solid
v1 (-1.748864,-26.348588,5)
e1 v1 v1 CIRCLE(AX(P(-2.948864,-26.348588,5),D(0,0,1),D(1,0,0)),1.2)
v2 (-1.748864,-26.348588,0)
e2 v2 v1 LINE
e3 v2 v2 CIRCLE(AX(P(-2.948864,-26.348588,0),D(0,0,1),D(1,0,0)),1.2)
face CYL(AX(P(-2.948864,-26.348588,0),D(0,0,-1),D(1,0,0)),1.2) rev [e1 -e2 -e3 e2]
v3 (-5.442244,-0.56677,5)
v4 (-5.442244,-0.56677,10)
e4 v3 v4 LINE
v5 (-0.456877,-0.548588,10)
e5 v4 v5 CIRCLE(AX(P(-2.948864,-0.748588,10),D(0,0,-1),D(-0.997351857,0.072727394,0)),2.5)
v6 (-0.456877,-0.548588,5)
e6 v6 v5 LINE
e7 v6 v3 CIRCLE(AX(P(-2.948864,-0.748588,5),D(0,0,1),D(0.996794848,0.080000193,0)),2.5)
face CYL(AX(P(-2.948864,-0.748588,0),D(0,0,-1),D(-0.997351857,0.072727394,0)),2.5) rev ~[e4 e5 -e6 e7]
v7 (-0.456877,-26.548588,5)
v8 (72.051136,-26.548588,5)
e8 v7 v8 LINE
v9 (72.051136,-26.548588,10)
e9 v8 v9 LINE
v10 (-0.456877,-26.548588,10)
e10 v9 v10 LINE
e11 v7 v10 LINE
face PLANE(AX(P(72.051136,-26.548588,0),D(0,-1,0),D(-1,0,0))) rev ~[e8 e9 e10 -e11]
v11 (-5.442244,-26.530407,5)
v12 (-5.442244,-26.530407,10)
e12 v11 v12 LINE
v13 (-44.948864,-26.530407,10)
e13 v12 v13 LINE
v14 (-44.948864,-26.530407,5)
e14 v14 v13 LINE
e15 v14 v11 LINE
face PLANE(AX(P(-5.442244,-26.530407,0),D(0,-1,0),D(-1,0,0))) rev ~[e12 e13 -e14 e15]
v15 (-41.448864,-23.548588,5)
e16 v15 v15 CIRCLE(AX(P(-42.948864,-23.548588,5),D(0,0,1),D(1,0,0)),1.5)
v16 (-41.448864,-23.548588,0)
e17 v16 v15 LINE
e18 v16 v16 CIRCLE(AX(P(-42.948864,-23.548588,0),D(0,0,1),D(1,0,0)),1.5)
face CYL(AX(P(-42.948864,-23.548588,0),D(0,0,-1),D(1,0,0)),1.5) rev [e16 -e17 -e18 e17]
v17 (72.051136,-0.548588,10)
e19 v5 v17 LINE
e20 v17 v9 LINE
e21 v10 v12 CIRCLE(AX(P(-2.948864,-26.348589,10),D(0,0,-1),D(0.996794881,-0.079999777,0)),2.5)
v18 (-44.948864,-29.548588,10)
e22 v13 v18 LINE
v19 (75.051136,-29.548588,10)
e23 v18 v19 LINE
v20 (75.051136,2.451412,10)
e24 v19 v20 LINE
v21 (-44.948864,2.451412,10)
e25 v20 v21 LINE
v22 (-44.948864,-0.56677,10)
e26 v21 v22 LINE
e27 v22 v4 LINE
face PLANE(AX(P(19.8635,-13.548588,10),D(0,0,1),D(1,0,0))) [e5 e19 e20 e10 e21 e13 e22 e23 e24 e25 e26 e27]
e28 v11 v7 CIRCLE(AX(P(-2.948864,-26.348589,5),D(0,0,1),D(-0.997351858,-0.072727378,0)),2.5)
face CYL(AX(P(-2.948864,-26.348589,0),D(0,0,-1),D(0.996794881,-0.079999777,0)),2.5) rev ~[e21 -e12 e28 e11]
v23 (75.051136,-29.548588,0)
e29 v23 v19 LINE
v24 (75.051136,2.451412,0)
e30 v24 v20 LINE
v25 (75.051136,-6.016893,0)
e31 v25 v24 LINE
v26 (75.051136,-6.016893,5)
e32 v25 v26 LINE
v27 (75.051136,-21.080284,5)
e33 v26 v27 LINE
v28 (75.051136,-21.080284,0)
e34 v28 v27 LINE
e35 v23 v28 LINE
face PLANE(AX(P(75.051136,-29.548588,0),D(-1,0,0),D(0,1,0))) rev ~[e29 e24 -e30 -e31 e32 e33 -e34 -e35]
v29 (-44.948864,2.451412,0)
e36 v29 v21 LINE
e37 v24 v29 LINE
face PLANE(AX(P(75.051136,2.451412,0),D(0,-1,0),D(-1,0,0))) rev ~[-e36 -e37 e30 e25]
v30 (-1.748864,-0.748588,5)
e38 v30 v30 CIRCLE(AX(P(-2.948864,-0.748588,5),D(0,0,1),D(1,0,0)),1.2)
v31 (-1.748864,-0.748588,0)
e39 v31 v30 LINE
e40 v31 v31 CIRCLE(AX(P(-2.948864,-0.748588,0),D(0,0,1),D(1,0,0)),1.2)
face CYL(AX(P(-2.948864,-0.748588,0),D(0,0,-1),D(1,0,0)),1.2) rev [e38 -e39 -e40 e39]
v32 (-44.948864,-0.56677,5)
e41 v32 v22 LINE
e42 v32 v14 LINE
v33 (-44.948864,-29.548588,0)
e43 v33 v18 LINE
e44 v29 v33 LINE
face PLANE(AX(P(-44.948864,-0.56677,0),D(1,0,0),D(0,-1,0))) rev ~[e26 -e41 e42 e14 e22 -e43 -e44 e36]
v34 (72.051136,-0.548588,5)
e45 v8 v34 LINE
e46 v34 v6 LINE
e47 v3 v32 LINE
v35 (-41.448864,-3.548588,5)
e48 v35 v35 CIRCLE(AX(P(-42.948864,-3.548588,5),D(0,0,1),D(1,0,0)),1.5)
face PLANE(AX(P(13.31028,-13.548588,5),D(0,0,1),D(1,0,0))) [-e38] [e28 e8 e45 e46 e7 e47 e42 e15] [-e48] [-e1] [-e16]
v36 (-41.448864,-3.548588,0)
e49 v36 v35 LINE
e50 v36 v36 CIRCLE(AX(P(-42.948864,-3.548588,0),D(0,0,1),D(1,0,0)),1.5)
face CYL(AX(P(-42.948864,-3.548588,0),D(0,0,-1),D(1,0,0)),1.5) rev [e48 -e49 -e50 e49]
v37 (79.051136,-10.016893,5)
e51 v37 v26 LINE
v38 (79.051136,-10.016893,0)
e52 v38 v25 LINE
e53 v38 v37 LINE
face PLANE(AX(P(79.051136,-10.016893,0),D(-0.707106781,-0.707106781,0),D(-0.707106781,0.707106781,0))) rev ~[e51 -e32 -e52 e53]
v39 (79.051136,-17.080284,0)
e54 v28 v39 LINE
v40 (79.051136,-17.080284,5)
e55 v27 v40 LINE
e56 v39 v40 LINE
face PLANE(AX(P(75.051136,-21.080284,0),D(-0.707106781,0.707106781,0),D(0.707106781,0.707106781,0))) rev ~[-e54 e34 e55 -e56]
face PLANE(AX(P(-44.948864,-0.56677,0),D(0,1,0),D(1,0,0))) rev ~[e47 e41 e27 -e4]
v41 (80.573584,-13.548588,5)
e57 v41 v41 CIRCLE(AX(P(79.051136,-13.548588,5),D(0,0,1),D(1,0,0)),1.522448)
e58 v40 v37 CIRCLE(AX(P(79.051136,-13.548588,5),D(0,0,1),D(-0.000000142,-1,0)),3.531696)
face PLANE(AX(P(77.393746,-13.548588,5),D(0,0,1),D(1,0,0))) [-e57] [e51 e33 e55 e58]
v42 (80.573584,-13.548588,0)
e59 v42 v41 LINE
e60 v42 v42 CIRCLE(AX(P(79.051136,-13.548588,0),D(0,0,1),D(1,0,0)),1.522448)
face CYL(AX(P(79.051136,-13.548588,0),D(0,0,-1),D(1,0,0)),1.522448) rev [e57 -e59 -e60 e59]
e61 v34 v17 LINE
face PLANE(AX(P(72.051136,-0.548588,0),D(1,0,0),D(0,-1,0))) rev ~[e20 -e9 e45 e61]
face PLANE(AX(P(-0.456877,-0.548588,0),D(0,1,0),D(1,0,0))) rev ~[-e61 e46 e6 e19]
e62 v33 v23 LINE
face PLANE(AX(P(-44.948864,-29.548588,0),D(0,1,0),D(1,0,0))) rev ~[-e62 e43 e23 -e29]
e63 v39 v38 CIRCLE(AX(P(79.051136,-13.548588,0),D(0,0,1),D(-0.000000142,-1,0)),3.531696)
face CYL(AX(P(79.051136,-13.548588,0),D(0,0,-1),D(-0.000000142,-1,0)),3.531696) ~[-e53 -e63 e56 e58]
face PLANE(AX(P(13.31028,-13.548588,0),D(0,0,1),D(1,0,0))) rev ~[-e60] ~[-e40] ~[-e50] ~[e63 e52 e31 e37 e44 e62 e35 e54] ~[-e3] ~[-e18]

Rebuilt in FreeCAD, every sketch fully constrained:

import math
import FreeCAD as App
import Part
import Sketcher
from FreeCAD import Vector
Q = App.Units.Quantity

doc = App.newDocument("Part")
body = doc.addObject("PartDesign::Body", "Body")

sketch1 = body.newObject("Sketcher::SketchObject", "Sketch")
sketch1.AttachmentSupport = (doc.getObject("XY_Plane"), [""])
sketch1.MapMode = "FlatFace"
sketch1.addGeometry(Part.LineSegment(Vector(75.051136, 2.451412, 0), Vector(-44.948864, 2.451412, 0)), False)
sketch1.addGeometry(Part.LineSegment(Vector(-44.948864, 2.451412, 0), Vector(-44.948864, -0.56677, 0)), False)
sketch1.addGeometry(Part.LineSegment(Vector(-44.948864, -0.56677, 0), Vector(-5.442244, -0.56677, 0)), False)
sketch1.addGeometry(Part.ArcOfCircle(Part.Circle(Vector(-2.948864, -0.748588, 0), Vector(0, 0, 1), 2.5), math.radians(4.588577), math.radians(175.829345)), False)
sketch1.addGeometry(Part.LineSegment(Vector(-0.456877, -0.548588, 0), Vector(72.051136, -0.548588, 0)), False)
sketch1.addGeometry(Part.LineSegment(Vector(72.051136, -0.548588, 0), Vector(72.051136, -26.548588, 0)), False)
sketch1.addGeometry(Part.LineSegment(Vector(72.051136, -26.548588, 0), Vector(-0.456877, -26.548588, 0)), False)
sketch1.addGeometry(Part.ArcOfCircle(Part.Circle(Vector(-2.948864, -26.348589, 0), Vector(0, 0, 1), 2.5), math.radians(-175.829346), math.radians(-4.588553)), False)
sketch1.addGeometry(Part.LineSegment(Vector(-5.442244, -26.530407, 0), Vector(-44.948864, -26.530407, 0)), False)
sketch1.addGeometry(Part.LineSegment(Vector(-44.948864, -26.530407, 0), Vector(-44.948864, -29.548588, 0)), False)
sketch1.addGeometry(Part.LineSegment(Vector(-44.948864, -29.548588, 0), Vector(75.051136, -29.548588, 0)), False)
sketch1.addGeometry(Part.LineSegment(Vector(75.051136, -29.548588, 0), Vector(75.051136, 2.451412, 0)), False)
sketch1.addConstraint(Sketcher.Constraint("Coincident", 0, 2, 1, 1))
sketch1.addConstraint(Sketcher.Constraint("Coincident", 1, 2, 2, 1))
sketch1.addConstraint(Sketcher.Constraint("Coincident", 2, 2, 3, 2))
sketch1.addConstraint(Sketcher.Constraint("Coincident", 3, 1, 4, 1))
sketch1.addConstraint(Sketcher.Constraint("Coincident", 4, 2, 5, 1))
sketch1.addConstraint(Sketcher.Constraint("Coincident", 5, 2, 6, 1))
sketch1.addConstraint(Sketcher.Constraint("Coincident", 6, 2, 7, 2))
sketch1.addConstraint(Sketcher.Constraint("Coincident", 7, 1, 8, 1))
sketch1.addConstraint(Sketcher.Constraint("Coincident", 8, 2, 9, 1))
sketch1.addConstraint(Sketcher.Constraint("Coincident", 9, 2, 10, 1))
sketch1.addConstraint(Sketcher.Constraint("Coincident", 10, 2, 11, 1))
sketch1.addConstraint(Sketcher.Constraint("Coincident", 11, 2, 0, 1))
sketch1.addConstraint(Sketcher.Constraint("Horizontal", 0))
sketch1.addConstraint(Sketcher.Constraint("Vertical", 1))
sketch1.addConstraint(Sketcher.Constraint("Horizontal", 2))
sketch1.addConstraint(Sketcher.Constraint("Horizontal", 4))
sketch1.addConstraint(Sketcher.Constraint("Vertical", 5))
sketch1.addConstraint(Sketcher.Constraint("Horizontal", 6))
sketch1.addConstraint(Sketcher.Constraint("Horizontal", 8))
sketch1.addConstraint(Sketcher.Constraint("Vertical", 9))
sketch1.addConstraint(Sketcher.Constraint("Horizontal", 10))
sketch1.addConstraint(Sketcher.Constraint("Vertical", 11))
sketch1.addConstraint(Sketcher.Constraint("Equal", 3, 7))
sketch1.addConstraint(Sketcher.Constraint("Vertical", 3, 3, 7, 3))
sketch1.addConstraint(Sketcher.Constraint("Vertical", 3, 1, 6, 2))
sketch1.addConstraint(Sketcher.Constraint("Vertical", 2, 2, 7, 1))
sketch1.addConstraint(Sketcher.Constraint("Vertical", 1, 2, 8, 2))
sketch1.addConstraint(Sketcher.Constraint("Equal", 1, 9))
sketch1.addConstraint(Sketcher.Constraint("Radius", 3, Q("2.5 mm")))
sketch1.addConstraint(Sketcher.Constraint("DistanceX", 0, 2, 0, 1, Q("120 mm")))
sketch1.addConstraint(Sketcher.Constraint("DistanceY", 5, 2, 5, 1, Q("26 mm")))
sketch1.addConstraint(Sketcher.Constraint("DistanceY", 11, 1, 11, 2, Q("32 mm")))
sketch1.addConstraint(Sketcher.Constraint("DistanceX", 0, 2, 3, 3, Q("42 mm")))
sketch1.addConstraint(Sketcher.Constraint("DistanceX", 3, 3, 4, 2, Q("75 mm")))
sketch1.addConstraint(Sketcher.Constraint("DistanceY", 7, 3, 3, 3, Q("25.6 mm")))
sketch1.addConstraint(Sketcher.Constraint("DistanceX", 2, 1, 2, 2, Q("39.50662 mm")))
sketch1.addConstraint(Sketcher.Constraint("DistanceY", 3, 3, -1, 1, Q("0.748588 mm")))
sketch1.addConstraint(Sketcher.Constraint("DistanceX", 3, 3, -1, 1, Q("2.948864 mm")))
pad1 = body.newObject("PartDesign::Pad", "Pad")
pad1.Profile = sketch1
pad1.Length = 10

sketch2 = body.newObject("Sketcher::SketchObject", "Sketch001")
sketch2.AttachmentSupport = (doc.getObject("XY_Plane"), [""])
sketch2.MapMode = "FlatFace"
sketch2.addGeometry(Part.LineSegment(Vector(-5.442244, -0.56677, 0), Vector(-44.948864, -0.56677, 0)), False)
sketch2.addGeometry(Part.LineSegment(Vector(-44.948864, -0.56677, 0), Vector(-44.948864, -26.530407, 0)), False)
sketch2.addGeometry(Part.LineSegment(Vector(-44.948864, -26.530407, 0), Vector(-5.442244, -26.530407, 0)), False)
sketch2.addGeometry(Part.ArcOfCircle(Part.Circle(Vector(-2.948864, -26.348589, 0), Vector(0, 0, 1), 2.5), math.radians(-175.829346), math.radians(-4.588553)), False)
sketch2.addGeometry(Part.LineSegment(Vector(-0.456877, -26.548588, 0), Vector(72.051136, -26.548588, 0)), False)
sketch2.addGeometry(Part.LineSegment(Vector(72.051136, -26.548588, 0), Vector(72.051136, -0.548588, 0)), False)
sketch2.addGeometry(Part.LineSegment(Vector(72.051136, -0.548588, 0), Vector(-0.456877, -0.548588, 0)), False)
sketch2.addGeometry(Part.ArcOfCircle(Part.Circle(Vector(-2.948864, -0.748588, 0), Vector(0, 0, 1), 2.5), math.radians(4.588577), math.radians(175.829345)), False)
sketch2.addGeometry(Part.Circle(Vector(-42.948864, -23.548588, 0), Vector(0, 0, 1), 1.5), False)
sketch2.addGeometry(Part.Circle(Vector(-2.948864, -26.348588, 0), Vector(0, 0, 1), 1.2), False)
sketch2.addGeometry(Part.Circle(Vector(-42.948864, -3.548588, 0), Vector(0, 0, 1), 1.5), False)
sketch2.addGeometry(Part.Circle(Vector(-2.948864, -0.748588, 0), Vector(0, 0, 1), 1.2), False)
sketch2.addGeometry(Part.LineSegment(Vector(79.051136, -10.016893, 0), Vector(75.051136, -6.016893, 0)), False)
sketch2.addGeometry(Part.LineSegment(Vector(75.051136, -6.016893, 0), Vector(75.051136, -21.080284, 0)), False)
sketch2.addGeometry(Part.LineSegment(Vector(75.051136, -21.080284, 0), Vector(79.051136, -17.080284, 0)), False)
sketch2.addGeometry(Part.ArcOfCircle(Part.Circle(Vector(79.051136, -13.548588, 0), Vector(0, 0, 1), 3.531696), math.radians(-90.000008), math.radians(90.000008)), False)
sketch2.addGeometry(Part.Circle(Vector(79.051136, -13.548588, 0), Vector(0, 0, 1), 1.522448), False)
sketch2.addConstraint(Sketcher.Constraint("Coincident", 0, 2, 1, 1))
sketch2.addConstraint(Sketcher.Constraint("Coincident", 1, 2, 2, 1))
sketch2.addConstraint(Sketcher.Constraint("Coincident", 2, 2, 3, 1))
sketch2.addConstraint(Sketcher.Constraint("Coincident", 3, 2, 4, 1))
sketch2.addConstraint(Sketcher.Constraint("Coincident", 4, 2, 5, 1))
sketch2.addConstraint(Sketcher.Constraint("Coincident", 5, 2, 6, 1))
sketch2.addConstraint(Sketcher.Constraint("Coincident", 6, 2, 7, 1))
sketch2.addConstraint(Sketcher.Constraint("Coincident", 7, 2, 0, 1))
sketch2.addConstraint(Sketcher.Constraint("Coincident", 12, 2, 13, 1))
sketch2.addConstraint(Sketcher.Constraint("Coincident", 13, 2, 14, 1))
sketch2.addConstraint(Sketcher.Constraint("Coincident", 14, 2, 15, 1))
sketch2.addConstraint(Sketcher.Constraint("Coincident", 15, 2, 12, 1))
sketch2.addConstraint(Sketcher.Constraint("Horizontal", 0))
sketch2.addConstraint(Sketcher.Constraint("Vertical", 1))
sketch2.addConstraint(Sketcher.Constraint("Horizontal", 2))
sketch2.addConstraint(Sketcher.Constraint("Horizontal", 4))
sketch2.addConstraint(Sketcher.Constraint("Vertical", 5))
sketch2.addConstraint(Sketcher.Constraint("Horizontal", 6))
sketch2.addConstraint(Sketcher.Constraint("Vertical", 13))
sketch2.addConstraint(Sketcher.Constraint("Coincident", 9, 3, 3, 3))
sketch2.addConstraint(Sketcher.Constraint("Coincident", 11, 3, 7, 3))
sketch2.addConstraint(Sketcher.Constraint("Coincident", 16, 3, 15, 3))
sketch2.addConstraint(Sketcher.Constraint("Equal", 3, 7))
sketch2.addConstraint(Sketcher.Constraint("Equal", 8, 10))
sketch2.addConstraint(Sketcher.Constraint("Equal", 9, 11))
sketch2.addConstraint(Sketcher.Constraint("Perpendicular", 12, 14))
sketch2.addConstraint(Sketcher.Constraint("Vertical", 3, 3, 7, 3))
sketch2.addConstraint(Sketcher.Constraint("Vertical", 8, 3, 10, 3))
sketch2.addConstraint(Sketcher.Constraint("Vertical", 3, 2, 6, 2))
sketch2.addConstraint(Sketcher.Constraint("Vertical", 2, 2, 7, 2))
sketch2.addConstraint(Sketcher.Constraint("Vertical", 16, 3, 14, 2))
sketch2.addConstraint(Sketcher.Constraint("Vertical", 14, 2, 15, 2))
sketch2.addConstraint(Sketcher.Constraint("Equal", 12, 14))
sketch2.addConstraint(Sketcher.Constraint("Diameter", 8, Q("3 mm")))
sketch2.addConstraint(Sketcher.Constraint("Diameter", 9, Q("2.4 mm")))
sketch2.addConstraint(Sketcher.Constraint("Radius", 3, Q("2.5 mm")))
sketch2.addConstraint(Sketcher.Constraint("DistanceY", 5, 1, 5, 2, Q("26 mm")))
sketch2.addConstraint(Sketcher.Constraint("DistanceX", 8, 3, 3, 3, Q("40 mm")))
sketch2.addConstraint(Sketcher.Constraint("DistanceY", 8, 3, 10, 3, Q("20 mm")))
sketch2.addConstraint(Sketcher.Constraint("DistanceX", 9, 3, 15, 3, Q("82 mm")))
sketch2.addConstraint(Sketcher.Constraint("DistanceY", 8, 3, 15, 3, Q("9.999999 mm")))
sketch2.addConstraint(Sketcher.Constraint("DistanceX", 0, 2, 10, 3, Q("2 mm")))
sketch2.addConstraint(Sketcher.Constraint("DistanceX", 4, 2, 15, 3, Q("7 mm")))
sketch2.addConstraint(Sketcher.Constraint("DistanceY", 4, 2, 15, 3, Q("12.999999 mm")))
sketch2.addConstraint(Sketcher.Constraint("DistanceX", 5, 2, 12, 2, Q("3 mm")))
sketch2.addConstraint(Sketcher.Constraint("DistanceY", 3, 3, 7, 3, Q("25.6 mm")))
sketch2.addConstraint(Sketcher.Constraint("Diameter", 16, Q("3.044896 mm")))
sketch2.addConstraint(Sketcher.Constraint("Radius", 15, Q("3.531696 mm")))
sketch2.addConstraint(Sketcher.Constraint("DistanceX", 0, 2, 0, 1, Q("39.50662 mm")))
sketch2.addConstraint(Sketcher.Constraint("DistanceY", 3, 3, -1, 1, Q("26.348589 mm")))
sketch2.addConstraint(Sketcher.Constraint("DistanceX", 3, 3, -1, 1, Q("2.948864 mm")))
pad2 = body.newObject("PartDesign::Pad", "Pad001")
pad2.Profile = sketch2
pad2.Length = 5

doc.recompute()
